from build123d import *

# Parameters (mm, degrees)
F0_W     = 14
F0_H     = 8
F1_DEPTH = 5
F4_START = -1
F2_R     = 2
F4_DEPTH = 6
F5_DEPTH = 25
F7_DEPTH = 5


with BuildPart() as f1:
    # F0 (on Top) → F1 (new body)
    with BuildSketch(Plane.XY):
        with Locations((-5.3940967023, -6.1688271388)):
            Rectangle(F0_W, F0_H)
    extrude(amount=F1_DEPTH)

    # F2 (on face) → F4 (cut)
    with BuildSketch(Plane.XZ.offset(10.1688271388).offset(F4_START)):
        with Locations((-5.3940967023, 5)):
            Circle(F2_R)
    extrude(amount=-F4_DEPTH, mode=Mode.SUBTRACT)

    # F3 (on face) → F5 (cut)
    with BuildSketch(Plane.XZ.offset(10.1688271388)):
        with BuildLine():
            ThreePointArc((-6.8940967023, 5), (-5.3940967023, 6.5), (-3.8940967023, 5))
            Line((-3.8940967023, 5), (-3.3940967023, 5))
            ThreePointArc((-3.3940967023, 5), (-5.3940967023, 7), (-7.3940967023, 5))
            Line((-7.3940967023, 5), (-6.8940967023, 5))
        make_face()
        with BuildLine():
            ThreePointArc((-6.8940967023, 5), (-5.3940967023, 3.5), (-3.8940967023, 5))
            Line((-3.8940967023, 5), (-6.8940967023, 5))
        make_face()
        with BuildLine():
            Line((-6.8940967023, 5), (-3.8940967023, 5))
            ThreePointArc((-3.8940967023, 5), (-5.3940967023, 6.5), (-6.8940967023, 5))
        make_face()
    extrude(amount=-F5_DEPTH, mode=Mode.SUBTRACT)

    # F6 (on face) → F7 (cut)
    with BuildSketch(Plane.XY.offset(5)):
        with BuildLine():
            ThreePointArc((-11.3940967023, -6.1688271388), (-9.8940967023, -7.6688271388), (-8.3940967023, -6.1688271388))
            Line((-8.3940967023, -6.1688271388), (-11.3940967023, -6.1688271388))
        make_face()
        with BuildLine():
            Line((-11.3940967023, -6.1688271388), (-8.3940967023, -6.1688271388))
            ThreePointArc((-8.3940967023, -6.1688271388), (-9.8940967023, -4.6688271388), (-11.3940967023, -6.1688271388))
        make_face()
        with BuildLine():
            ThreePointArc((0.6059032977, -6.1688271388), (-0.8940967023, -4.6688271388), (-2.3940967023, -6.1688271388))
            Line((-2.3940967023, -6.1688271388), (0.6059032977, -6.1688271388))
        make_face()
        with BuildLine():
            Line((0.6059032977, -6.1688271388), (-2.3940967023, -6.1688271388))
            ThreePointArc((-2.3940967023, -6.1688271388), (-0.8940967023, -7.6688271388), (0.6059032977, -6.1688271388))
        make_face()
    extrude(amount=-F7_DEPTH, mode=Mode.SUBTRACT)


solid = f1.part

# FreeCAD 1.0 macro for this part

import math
import FreeCAD as App
import Part
import Sketcher

V = App.Vector


def add_polygon(sketch, points):
    """Adds a closed chain of lines whose ends are joined by coincident constraints."""
    first, n = sketch.GeometryCount, len(points)
    for a, b in zip(points, points[1:] + points[:1]):
        sketch.addGeometry(Part.LineSegment(App.Vector(*a, 0), App.Vector(*b, 0)), False)
    for i in range(n):
        sketch.addConstraint(Sketcher.Constraint("Coincident", first + i, 2, first + (i + 1) % n, 1))

doc = App.newDocument("Part")
body = doc.addObject("PartDesign::Body", "Body")

# Sketch on XY plane
sketch1 = doc.addObject("Sketcher::SketchObject", "Sketch")
body.addObject(sketch1)
sketch1.AttachmentSupport = (doc.XY_Plane, [""])
sketch1.MapMode = "FlatFace"
add_polygon(sketch1, [(-12, -2), (-12, -10), (2, -10), (2, -2)])  # lines 0-3
sketch1.addConstraint([
    Sketcher.Constraint("Vertical", 0),
    Sketcher.Constraint("Horizontal", 1),
    Sketcher.Constraint("Vertical", 2),
    Sketcher.Constraint("Horizontal", 3),
    Sketcher.Constraint("DistanceX", 1, 1, 1, 2, 14.0),
    Sketcher.Constraint("DistanceY", 0, 2, 0, 1, 8.0),
    Sketcher.Constraint("DistanceX", 0, 2, -1, 1, 12.394097),
    Sketcher.Constraint("DistanceY", 0, 2, -1, 1, 10.168827),
])
pad1 = doc.addObject("PartDesign::Pad", "Pad")
body.addObject(pad1)
pad1.Profile = sketch1
pad1.Length = 5

# Sketch on XZ plane
sketch2 = doc.addObject("Sketcher::SketchObject", "Sketch001")
body.addObject(sketch2)
sketch2.AttachmentSupport = (doc.XZ_Plane, [""])
sketch2.MapMode = "FlatFace"
sketch2.AttachmentOffset = App.Placement(V(0, 0, 9.168827), App.Rotation())
sketch2.addGeometry(Part.Circle(V(-5.4, 5, 0), V(0, 0, 1), 2), False)
sketch2.addConstraint([
    Sketcher.Constraint("Diameter", 0, 4.0),
    Sketcher.Constraint("DistanceY", -1, 1, 0, 3, 5.0),
    Sketcher.Constraint("DistanceX", 0, 3, -1, 1, 5.394097),
])
pocket1 = doc.addObject("PartDesign::Pocket", "Pocket")
body.addObject(pocket1)
pocket1.Profile = sketch2
pocket1.Length = 6

# Sketch on XZ plane
sketch3 = doc.addObject("Sketcher::SketchObject", "Sketch002")
body.addObject(sketch3)
sketch3.AttachmentSupport = (doc.XZ_Plane, [""])
sketch3.MapMode = "FlatFace"
sketch3.AttachmentOffset = App.Placement(V(0, 0, 10.168827), App.Rotation())
sketch3.addGeometry([
    Part.LineSegment(V(-3.9, 5, 0), V(-3.4, 5, 0)),
    Part.ArcOfCircle(Part.Circle(V(-5.4, 5, 0), V(0, 0, 1), 2), math.radians(0), math.radians(180)),
    Part.LineSegment(V(-7.4, 5, 0), V(-6.9, 5, 0)),
    Part.ArcOfCircle(Part.Circle(V(-5.4, 5, 0), V(0, 0, 1), 1.5), math.radians(180), math.radians(360)),
], False)
sketch3.addConstraint([
    Sketcher.Constraint("Coincident", 0, 2, 1, 1),
    Sketcher.Constraint("Coincident", 1, 2, 2, 1),
    Sketcher.Constraint("Coincident", 2, 2, 3, 1),
    Sketcher.Constraint("Coincident", 3, 2, 0, 1),
    Sketcher.Constraint("Horizontal", 0),
    Sketcher.Constraint("Horizontal", 2),
    Sketcher.Constraint("Coincident", 3, 3, 1, 3),
    Sketcher.Constraint("Horizontal", 3, 3, 0, 2),
    Sketcher.Constraint("Horizontal", 0, 2, 1, 2),
    Sketcher.Constraint("Radius", 1, 2.0),
    Sketcher.Constraint("Radius", 3, 1.5),
    Sketcher.Constraint("DistanceY", -1, 1, 1, 3, 5.0),
    Sketcher.Constraint("DistanceX", 1, 3, -1, 1, 5.394097),
])
pocket2 = doc.addObject("PartDesign::Pocket", "Pocket001")
body.addObject(pocket2)
pocket2.Profile = sketch3
pocket2.Length = 25

# Sketch on XY plane
sketch4 = doc.addObject("Sketcher::SketchObject", "Sketch003")
body.addObject(sketch4)
sketch4.AttachmentSupport = (doc.XY_Plane, [""])
sketch4.MapMode = "FlatFace"
sketch4.AttachmentOffset = App.Placement(V(0, 0, 5), App.Rotation())
sketch4.addGeometry([
    Part.Circle(V(-9.9, -6.2, 0), V(0, 0, 1), 1.5),
    Part.Circle(V(-0.9, -6.2, 0), V(0, 0, 1), 1.5),
], False)
sketch4.addConstraint([
    Sketcher.Constraint("Equal", 0, 1),
    Sketcher.Constraint("Horizontal", 0, 3, 1, 3),
    Sketcher.Constraint("Diameter", 0, 3.0),
    Sketcher.Constraint("DistanceX", 0, 3, 1, 3, 9.0),
    Sketcher.Constraint("DistanceX", 0, 3, -1, 1, 9.894097),
    Sketcher.Constraint("DistanceY", 0, 3, -1, 1, 6.168827),
])
pocket3 = doc.addObject("PartDesign::Pocket", "Pocket002")
body.addObject(pocket3)
pocket3.Profile = sketch4
pocket3.Length = 5

doc.recompute()
